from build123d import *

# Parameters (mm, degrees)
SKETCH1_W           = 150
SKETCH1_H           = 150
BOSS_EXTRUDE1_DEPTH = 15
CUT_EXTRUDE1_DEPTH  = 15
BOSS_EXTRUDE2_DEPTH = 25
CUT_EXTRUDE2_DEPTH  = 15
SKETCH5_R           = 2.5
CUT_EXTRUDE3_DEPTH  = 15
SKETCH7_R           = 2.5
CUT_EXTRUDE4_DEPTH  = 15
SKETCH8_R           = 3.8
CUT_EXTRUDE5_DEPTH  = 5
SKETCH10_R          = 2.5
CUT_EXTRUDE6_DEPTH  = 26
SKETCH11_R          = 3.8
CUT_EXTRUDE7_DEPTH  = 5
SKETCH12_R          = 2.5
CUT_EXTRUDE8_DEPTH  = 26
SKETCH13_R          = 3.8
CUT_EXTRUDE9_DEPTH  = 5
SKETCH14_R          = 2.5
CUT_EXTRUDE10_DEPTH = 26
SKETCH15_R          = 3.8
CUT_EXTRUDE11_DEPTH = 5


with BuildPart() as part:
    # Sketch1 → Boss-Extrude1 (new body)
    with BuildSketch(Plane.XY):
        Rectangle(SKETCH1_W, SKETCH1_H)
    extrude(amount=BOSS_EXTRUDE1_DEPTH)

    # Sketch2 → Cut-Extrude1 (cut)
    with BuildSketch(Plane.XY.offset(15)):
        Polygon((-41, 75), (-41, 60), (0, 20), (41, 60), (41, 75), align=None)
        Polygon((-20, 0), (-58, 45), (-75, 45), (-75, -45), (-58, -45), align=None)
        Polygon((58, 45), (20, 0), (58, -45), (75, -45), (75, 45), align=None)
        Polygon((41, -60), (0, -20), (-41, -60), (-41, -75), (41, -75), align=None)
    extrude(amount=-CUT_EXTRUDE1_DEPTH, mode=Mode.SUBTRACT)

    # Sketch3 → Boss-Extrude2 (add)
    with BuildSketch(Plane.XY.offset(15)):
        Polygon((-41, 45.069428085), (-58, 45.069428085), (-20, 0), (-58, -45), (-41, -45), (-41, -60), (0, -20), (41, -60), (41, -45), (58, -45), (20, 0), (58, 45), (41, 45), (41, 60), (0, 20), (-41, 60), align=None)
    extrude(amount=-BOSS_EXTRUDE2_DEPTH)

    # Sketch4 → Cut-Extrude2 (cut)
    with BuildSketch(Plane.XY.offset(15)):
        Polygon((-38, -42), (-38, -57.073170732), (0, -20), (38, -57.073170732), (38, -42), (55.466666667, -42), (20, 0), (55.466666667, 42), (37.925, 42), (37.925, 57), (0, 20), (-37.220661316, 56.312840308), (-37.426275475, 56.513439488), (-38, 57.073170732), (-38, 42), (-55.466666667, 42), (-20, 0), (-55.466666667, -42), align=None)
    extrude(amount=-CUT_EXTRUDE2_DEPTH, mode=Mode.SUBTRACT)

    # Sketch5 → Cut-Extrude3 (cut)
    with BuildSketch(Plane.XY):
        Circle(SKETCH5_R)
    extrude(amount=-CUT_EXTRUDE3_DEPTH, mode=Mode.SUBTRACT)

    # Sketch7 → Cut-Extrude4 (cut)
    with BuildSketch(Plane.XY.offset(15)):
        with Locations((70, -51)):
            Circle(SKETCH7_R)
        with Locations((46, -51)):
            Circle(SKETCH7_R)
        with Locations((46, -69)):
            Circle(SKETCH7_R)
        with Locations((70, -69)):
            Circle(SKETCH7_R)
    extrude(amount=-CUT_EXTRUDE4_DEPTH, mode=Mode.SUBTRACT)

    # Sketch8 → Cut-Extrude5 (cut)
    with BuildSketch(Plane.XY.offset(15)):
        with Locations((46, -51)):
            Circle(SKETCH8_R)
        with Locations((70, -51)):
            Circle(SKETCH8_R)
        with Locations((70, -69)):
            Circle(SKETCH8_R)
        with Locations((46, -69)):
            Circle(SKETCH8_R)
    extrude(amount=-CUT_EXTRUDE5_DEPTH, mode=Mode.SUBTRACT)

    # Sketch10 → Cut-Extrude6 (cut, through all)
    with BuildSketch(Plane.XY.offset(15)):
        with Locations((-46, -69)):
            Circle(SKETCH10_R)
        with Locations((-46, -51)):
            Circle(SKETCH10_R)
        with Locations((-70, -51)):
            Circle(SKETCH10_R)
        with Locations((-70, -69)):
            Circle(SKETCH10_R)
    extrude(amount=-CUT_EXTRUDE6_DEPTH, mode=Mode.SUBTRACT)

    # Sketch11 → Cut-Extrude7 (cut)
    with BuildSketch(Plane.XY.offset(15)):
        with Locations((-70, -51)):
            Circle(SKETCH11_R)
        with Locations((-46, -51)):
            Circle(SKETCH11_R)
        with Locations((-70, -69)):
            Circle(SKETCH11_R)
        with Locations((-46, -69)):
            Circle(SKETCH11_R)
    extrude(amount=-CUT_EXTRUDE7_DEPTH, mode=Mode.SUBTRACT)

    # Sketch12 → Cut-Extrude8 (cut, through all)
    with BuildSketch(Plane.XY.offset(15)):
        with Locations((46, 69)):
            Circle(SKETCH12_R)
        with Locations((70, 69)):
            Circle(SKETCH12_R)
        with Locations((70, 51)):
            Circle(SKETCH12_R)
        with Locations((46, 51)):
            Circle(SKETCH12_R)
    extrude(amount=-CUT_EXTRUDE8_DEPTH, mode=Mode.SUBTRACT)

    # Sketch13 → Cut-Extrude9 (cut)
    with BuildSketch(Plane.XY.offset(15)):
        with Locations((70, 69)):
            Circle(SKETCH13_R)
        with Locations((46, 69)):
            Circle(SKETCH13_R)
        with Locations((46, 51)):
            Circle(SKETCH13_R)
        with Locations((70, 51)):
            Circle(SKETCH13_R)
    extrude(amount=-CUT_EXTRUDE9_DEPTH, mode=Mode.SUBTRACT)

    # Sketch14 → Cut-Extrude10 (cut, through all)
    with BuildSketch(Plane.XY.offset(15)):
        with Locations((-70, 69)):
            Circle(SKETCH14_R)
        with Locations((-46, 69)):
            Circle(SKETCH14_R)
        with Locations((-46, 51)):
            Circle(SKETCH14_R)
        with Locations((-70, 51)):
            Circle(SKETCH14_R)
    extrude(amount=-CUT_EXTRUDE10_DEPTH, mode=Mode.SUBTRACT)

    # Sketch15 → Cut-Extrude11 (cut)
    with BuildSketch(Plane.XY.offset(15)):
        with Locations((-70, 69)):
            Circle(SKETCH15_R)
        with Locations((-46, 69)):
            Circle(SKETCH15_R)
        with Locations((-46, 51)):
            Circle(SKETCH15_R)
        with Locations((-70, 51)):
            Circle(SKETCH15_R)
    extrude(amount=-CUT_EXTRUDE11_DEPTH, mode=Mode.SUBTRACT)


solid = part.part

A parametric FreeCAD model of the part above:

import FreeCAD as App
import Part
import Sketcher

V = App.Vector
Q = App.Units.Quantity


def add_polygon(sketch, points):
    """Adds a closed chain of lines whose ends are joined by coincident constraints."""
    first, n = sketch.GeometryCount, len(points)
    for a, b in zip(points, points[1:] + points[:1]):
        sketch.addGeometry(Part.LineSegment(App.Vector(*a, 0), App.Vector(*b, 0)), False)
    for i in range(n):
        sketch.addConstraint(Sketcher.Constraint("Coincident", first + i, 2, first + (i + 1) % n, 1))

doc = App.newDocument("Part")
body = doc.addObject("PartDesign::Body", "Body")

sketch1 = body.newObject("Sketcher::SketchObject", "Sketch")
sketch1.AttachmentSupport = (doc.getObject("XY_Plane"), [""])
sketch1.MapMode = "FlatFace"
add_polygon(sketch1, [(-75, 75), (-75, -75), (75, -75), (75, 75)])
sketch1.addConstraint(Sketcher.Constraint("Vertical", 0))
sketch1.addConstraint(Sketcher.Constraint("Horizontal", 1))
sketch1.addConstraint(Sketcher.Constraint("Vertical", 2))
sketch1.addConstraint(Sketcher.Constraint("Horizontal", 3))
sketch1.addConstraint(Sketcher.Constraint("Symmetric", 0, 2, 2, 2, -1, 1))
sketch1.addConstraint(Sketcher.Constraint("Equal", 3, 0))
sketch1.addConstraint(Sketcher.Constraint("DistanceX", 1, 1, 1, 2, Q("150 mm")))
pad1 = body.newObject("PartDesign::Pad", "Pad")
pad1.Profile = sketch1
pad1.Length = 15

sketch2 = body.newObject("Sketcher::SketchObject", "Sketch001")
sketch2.AttachmentSupport = (doc.getObject("XY_Plane"), [""])
sketch2.MapMode = "FlatFace"
sketch2.AttachmentOffset = App.Placement(V(0, 0, 15), App.Rotation())
add_polygon(sketch2, [(-41, 75), (-41, 60), (0, 20), (41, 60), (41, 75)])
add_polygon(sketch2, [(-20, 0), (-58, 45), (-75, 45), (-75, -45), (-58, -45)])
add_polygon(sketch2, [(58, 45), (20, 0), (58, -45), (75, -45), (75, 45)])
add_polygon(sketch2, [(41, -60), (0, -20), (-41, -60), (-41, -75), (41, -75)])
sketch2.addConstraint(Sketcher.Constraint("Vertical", 0))
sketch2.addConstraint(Sketcher.Constraint("Vertical", 3))
sketch2.addConstraint(Sketcher.Constraint("Horizontal", 4))
sketch2.addConstraint(Sketcher.Constraint("Horizontal", 6))
sketch2.addConstraint(Sketcher.Constraint("Vertical", 7))
sketch2.addConstraint(Sketcher.Constraint("Horizontal", 8))
sketch2.addConstraint(Sketcher.Constraint("Horizontal", 12))
sketch2.addConstraint(Sketcher.Constraint("Vertical", 13))
sketch2.addConstraint(Sketcher.Constraint("Horizontal", 14))
sketch2.addConstraint(Sketcher.Constraint("Vertical", 17))
sketch2.addConstraint(Sketcher.Constraint("Horizontal", 18))
sketch2.addConstraint(Sketcher.Constraint("Vertical", 19))
sketch2.addConstraint(Sketcher.Constraint("Symmetric", 9, 2, 10, 2, -1, 1))
sketch2.addConstraint(Sketcher.Constraint("Symmetric", 5, 2, 11, 2, -1, 1))
sketch2.addConstraint(Sketcher.Constraint("Symmetric", 7, 2, 13, 2, -1, 1))
sketch2.addConstraint(Sketcher.Constraint("Symmetric", 1, 2, 15, 2, -1, 1))
sketch2.addConstraint(Sketcher.Constraint("Symmetric", 2, 2, 16, 2, -1, 1))
sketch2.addConstraint(Sketcher.Constraint("Symmetric", 4, 2, 18, 2, -1, 1))
sketch2.addConstraint(Sketcher.Constraint("Symmetric", 0, 2, 2, 2, -2))
sketch2.addConstraint(Sketcher.Constraint("Symmetric", 8, 2, 11, 2, -2))
sketch2.addConstraint(Sketcher.Constraint("PointOnObject", 1, 2, -2))
sketch2.addConstraint(Sketcher.Constraint("PointOnObject", 9, 2, -1))
sketch2.addConstraint(Sketcher.Constraint("Parallel", 9, 10))
sketch2.addConstraint(Sketcher.Constraint("Parallel", 1, 15))
sketch2.addConstraint(Sketcher.Constraint("DistanceX", 4, 2, 4, 1, Q("82 mm")))
sketch2.addConstraint(Sketcher.Constraint("DistanceX", 6, 2, 6, 1, Q("17 mm")))
sketch2.addConstraint(Sketcher.Constraint("DistanceY", 0, 2, 0, 1, Q("15 mm")))
sketch2.addConstraint(Sketcher.Constraint("DistanceY", 7, 2, 7, 1, Q("90 mm")))
sketch2.addConstraint(Sketcher.Constraint("DistanceY", -1, 1, 0, 2, Q("60 mm")))
sketch2.addConstraint(Sketcher.Constraint("DistanceY", -1, 1, 1, 2, Q("20 mm")))
sketch2.addConstraint(Sketcher.Constraint("DistanceX", 5, 2, -1, 1, Q("58 mm")))
sketch2.addConstraint(Sketcher.Constraint("DistanceX", 9, 2, -1, 1, Q("20 mm")))
pocket1 = body.newObject("PartDesign::Pocket", "Pocket")
pocket1.Profile = sketch2
pocket1.Length = 15

sketch3 = body.newObject("Sketcher::SketchObject", "Sketch002")
sketch3.AttachmentSupport = (doc.getObject("XY_Plane"), [""])
sketch3.MapMode = "FlatFace"
sketch3.AttachmentOffset = App.Placement(V(0, 0, 15), App.Rotation())
add_polygon(sketch3, [(-41, 45), (-58, 45), (-20, 0), (-58, -45), (-41, -45), (-41, -60), (0, -20), (41, -60), (41, -45), (58, -45), (20, 0), (58, 45), (41, 45), (41, 60), (0, 20), (-41, 60)])
sketch3.addConstraint(Sketcher.Constraint("Horizontal", 0))
sketch3.addConstraint(Sketcher.Constraint("Horizontal", 3))
sketch3.addConstraint(Sketcher.Constraint("Vertical", 4))
sketch3.addConstraint(Sketcher.Constraint("Vertical", 7))
sketch3.addConstraint(Sketcher.Constraint("Horizontal", 8))
sketch3.addConstraint(Sketcher.Constraint("Horizontal", 11))
sketch3.addConstraint(Sketcher.Constraint("Vertical", 12))
sketch3.addConstraint(Sketcher.Constraint("Vertical", 15))
sketch3.addConstraint(Sketcher.Constraint("Symmetric", 1, 2, 9, 2, -1, 1))
sketch3.addConstraint(Sketcher.Constraint("Symmetric", 2, 2, 10, 2, -1, 1))
sketch3.addConstraint(Sketcher.Constraint("Symmetric", 4, 2, 12, 2, -1, 1))
sketch3.addConstraint(Sketcher.Constraint("Symmetric", 5, 2, 13, 2, -1, 1))
sketch3.addConstraint(Sketcher.Constraint("Symmetric", 6, 2, 14, 2, -1, 1))
sketch3.addConstraint(Sketcher.Constraint("Symmetric", 4, 2, 6, 2, -2))
sketch3.addConstraint(Sketcher.Constraint("Symmetric", 2, 2, 8, 2, -2))
sketch3.addConstraint(Sketcher.Constraint("PointOnObject", 1, 2, -1))
sketch3.addConstraint(Sketcher.Constraint("PointOnObject", 5, 2, -2))
sketch3.addConstraint(Sketcher.Constraint("Vertical", 0, 2, 2, 2))
sketch3.addConstraint(Sketcher.Constraint("DistanceX", 0, 2, 0, 1, Q("17 mm")))
sketch3.addConstraint(Sketcher.Constraint("DistanceY", 4, 2, 4, 1, Q("15 mm")))
sketch3.addConstraint(Sketcher.Constraint("DistanceX", 0, 2, -1, 1, Q("58 mm")))
sketch3.addConstraint(Sketcher.Constraint("DistanceX", 1, 2, -1, 1, Q("20 mm")))
sketch3.addConstraint(Sketcher.Constraint("DistanceY", 2, 2, -1, 1, Q("45 mm")))
sketch3.addConstraint(Sketcher.Constraint("DistanceY", 5, 2, -1, 1, Q("20 mm")))
sketch3.addConstraint(Sketcher.Constraint("DistanceY", 15, 2, 15, 1, Q("14.930572 mm")))
pad2 = body.newObject("PartDesign::Pad", "Pad001")
pad2.Profile = sketch3
pad2.Length = 25
pad2.Reversed = True

sketch4 = body.newObject("Sketcher::SketchObject", "Sketch003")
sketch4.AttachmentSupport = (doc.getObject("XY_Plane"), [""])
sketch4.MapMode = "FlatFace"
sketch4.AttachmentOffset = App.Placement(V(0, 0, 15), App.Rotation())
add_polygon(sketch4, [(-38, -42), (-38, -57.07), (0, -20), (38, -57.07), (38, -42), (55.47, -42), (20, 0), (55.47, 42), (37.92, 42), (37.92, 57), (0, 20), (-37.22, 56.31), (-37.43, 56.51), (-38, 57.07), (-38, 42), (-55.47, 42), (-20, 0), (-55.47, -42)])
sketch4.addConstraint(Sketcher.Constraint("Vertical", 0))
sketch4.addConstraint(Sketcher.Constraint("Vertical", 3))
sketch4.addConstraint(Sketcher.Constraint("Horizontal", 4))
sketch4.addConstraint(Sketcher.Constraint("Horizontal", 7))
sketch4.addConstraint(Sketcher.Constraint("Vertical", 8))
sketch4.addConstraint(Sketcher.Constraint("Vertical", 13))
sketch4.addConstraint(Sketcher.Constraint("Horizontal", 14))
sketch4.addConstraint(Sketcher.Constraint("Horizontal", 17))
sketch4.addConstraint(Sketcher.Constraint("Symmetric", 1, 2, 9, 2, -1, 1))
sketch4.addConstraint(Sketcher.Constraint("Symmetric", 2, 2, 12, 2, -1, 1))
sketch4.addConstraint(Sketcher.Constraint("Symmetric", 4, 2, 14, 2, -1, 1))
sketch4.addConstraint(Sketcher.Constraint("Symmetric", 5, 2, 15, 2, -1, 1))
sketch4.addConstraint(Sketcher.Constraint("Symmetric", 6, 2, 16, 2, -1, 1))
sketch4.addConstraint(Sketcher.Constraint("Symmetric", 0, 2, 2, 2, -2))
sketch4.addConstraint(Sketcher.Constraint("Symmetric", 6, 2, 14, 2, -2))
sketch4.addConstraint(Sketcher.Constraint("PointOnObject", 1, 2, -2))
sketch4.addConstraint(Sketcher.Constraint("PointOnObject", 5, 2, -1))
sketch4.addConstraint(Sketcher.Constraint("Parallel", 1, 9))
sketch4.addConstraint(Sketcher.Constraint("Parallel", 2, 10))
sketch4.addConstraint(Sketcher.Constraint("Parallel", 10, 11))
sketch4.addConstraint(Sketcher.Constraint("DistanceY", 8, 1, 8, 2, Q("15 mm")))
sketch4.addConstraint(Sketcher.Constraint("Distance", 10, Q("52 mm")))
sketch4.addConstraint(Sketcher.Constraint("DistanceX", 0, 2, -1, 1, Q("38 mm")))
sketch4.addConstraint(Sketcher.Constraint("DistanceY", 1, 2, -1, 1, Q("20 mm")))
sketch4.addConstraint(Sketcher.Constraint("DistanceY", 3, 2, -1, 1, Q("42 mm")))
sketch4.addConstraint(Sketcher.Constraint("DistanceX", -1, 1, 5, 2, Q("20 mm")))
sketch4.addConstraint(Sketcher.Constraint("DistanceX", -1, 1, 7, 2, Q("37.925 mm")))
sketch4.addConstraint(Sketcher.Constraint("DistanceY", 10, 2, 11, 2, Q("0.200599 mm")))
sketch4.addConstraint(Sketcher.Constraint("Distance", 5, Q("54.971669 mm")))
pocket2 = body.newObject("PartDesign::Pocket", "Pocket001")
pocket2.Profile = sketch4
pocket2.Length = 15

sketch5 = body.newObject("Sketcher::SketchObject", "Sketch004")
sketch5.AttachmentSupport = (doc.getObject("XY_Plane"), [""])
sketch5.MapMode = "FlatFace"
sketch5.addGeometry(Part.Circle(V(0, 0, 0), V(0, 0, 1), 2.5), False)
sketch5.addConstraint(Sketcher.Constraint("Coincident", 0, 3, -1, 1))
sketch5.addConstraint(Sketcher.Constraint("Diameter", 0, Q("5 mm")))
pocket3 = body.newObject("PartDesign::Pocket", "Pocket002")
pocket3.Profile = sketch5
pocket3.Length = 15

sketch6 = body.newObject("Sketcher::SketchObject", "Sketch005")
sketch6.AttachmentSupport = (doc.getObject("XY_Plane"), [""])
sketch6.MapMode = "FlatFace"
sketch6.AttachmentOffset = App.Placement(V(0, 0, 15), App.Rotation())
sketch6.addGeometry(Part.Circle(V(70, -51, 0), V(0, 0, 1), 2.5), False)
sketch6.addGeometry(Part.Circle(V(46, -51, 0), V(0, 0, 1), 2.5), False)
sketch6.addGeometry(Part.Circle(V(46, -69, 0), V(0, 0, 1), 2.5), False)
sketch6.addGeometry(Part.Circle(V(70, -69, 0), V(0, 0, 1), 2.5), False)
sketch6.addConstraint(Sketcher.Constraint("Equal", 0, 1))
sketch6.addConstraint(Sketcher.Constraint("Equal", 1, 2))
sketch6.addConstraint(Sketcher.Constraint("Equal", 2, 3))
sketch6.addConstraint(Sketcher.Constraint("Horizontal", 0, 3, 1, 3))
sketch6.addConstraint(Sketcher.Constraint("Horizontal", 2, 3, 3, 3))
sketch6.addConstraint(Sketcher.Constraint("Vertical", 1, 3, 2, 3))
sketch6.addConstraint(Sketcher.Constraint("Vertical", 0, 3, 3, 3))
sketch6.addConstraint(Sketcher.Constraint("Diameter", 0, Q("5 mm")))
sketch6.addConstraint(Sketcher.Constraint("DistanceX", -1, 1, 0, 3, Q("70 mm")))
sketch6.addConstraint(Sketcher.Constraint("DistanceY", 0, 3, -1, 1, Q("51 mm")))
sketch6.addConstraint(Sketcher.Constraint("DistanceX", -1, 1, 1, 3, Q("46 mm")))
sketch6.addConstraint(Sketcher.Constraint("DistanceY", 2, 3, -1, 1, Q("69 mm")))
pocket4 = body.newObject("PartDesign::Pocket", "Pocket003")
pocket4.Profile = sketch6
pocket4.Length = 15

sketch7 = body.newObject("Sketcher::SketchObject", "Sketch006")
sketch7.AttachmentSupport = (doc.getObject("XY_Plane"), [""])
sketch7.MapMode = "FlatFace"
sketch7.AttachmentOffset = App.Placement(V(0, 0, 15), App.Rotation())
sketch7.addGeometry(Part.Circle(V(46, -51, 0), V(0, 0, 1), 3.8), False)
sketch7.addGeometry(Part.Circle(V(70, -51, 0), V(0, 0, 1), 3.8), False)
sketch7.addGeometry(Part.Circle(V(70, -69, 0), V(0, 0, 1), 3.8), False)
sketch7.addGeometry(Part.Circle(V(46, -69, 0), V(0, 0, 1), 3.8), False)
sketch7.addConstraint(Sketcher.Constraint("Equal", 0, 1))
sketch7.addConstraint(Sketcher.Constraint("Equal", 1, 2))
sketch7.addConstraint(Sketcher.Constraint("Equal", 2, 3))
sketch7.addConstraint(Sketcher.Constraint("Horizontal", 0, 3, 1, 3))
sketch7.addConstraint(Sketcher.Constraint("Horizontal", 2, 3, 3, 3))
sketch7.addConstraint(Sketcher.Constraint("Vertical", 1, 3, 2, 3))
sketch7.addConstraint(Sketcher.Constraint("Vertical", 0, 3, 3, 3))
sketch7.addConstraint(Sketcher.Constraint("Diameter", 0, Q("7.6 mm")))
sketch7.addConstraint(Sketcher.Constraint("DistanceX", -1, 1, 0, 3, Q("46 mm")))
sketch7.addConstraint(Sketcher.Constraint("DistanceY", 0, 3, -1, 1, Q("51 mm")))
sketch7.addConstraint(Sketcher.Constraint("DistanceX", -1, 1, 1, 3, Q("70 mm")))
sketch7.addConstraint(Sketcher.Constraint("DistanceY", 2, 3, -1, 1, Q("69 mm")))
pocket5 = body.newObject("PartDesign::Pocket", "Pocket004")
pocket5.Profile = sketch7
pocket5.Length = 5

sketch8 = body.newObject("Sketcher::SketchObject", "Sketch007")
sketch8.AttachmentSupport = (doc.getObject("XY_Plane"), [""])
sketch8.MapMode = "FlatFace"
sketch8.AttachmentOffset = App.Placement(V(0, 0, 15), App.Rotation())
sketch8.addGeometry(Part.Circle(V(-46, -69, 0), V(0, 0, 1), 2.5), False)
sketch8.addGeometry(Part.Circle(V(-46, -51, 0), V(0, 0, 1), 2.5), False)
sketch8.addGeometry(Part.Circle(V(-70, -51, 0), V(0, 0, 1), 2.5), False)
sketch8.addGeometry(Part.Circle(V(-70, -69, 0), V(0, 0, 1), 2.5), False)
sketch8.addConstraint(Sketcher.Constraint("Equal", 0, 1))
sketch8.addConstraint(Sketcher.Constraint("Equal", 1, 2))
sketch8.addConstraint(Sketcher.Constraint("Equal", 2, 3))
sketch8.addConstraint(Sketcher.Constraint("Horizontal", 1, 3, 2, 3))
sketch8.addConstraint(Sketcher.Constraint("Horizontal", 0, 3, 3, 3))
sketch8.addConstraint(Sketcher.Constraint("Vertical", 0, 3, 1, 3))
sketch8.addConstraint(Sketcher.Constraint("Vertical", 2, 3, 3, 3))
sketch8.addConstraint(Sketcher.Constraint("Diameter", 0, Q("5 mm")))
sketch8.addConstraint(Sketcher.Constraint("DistanceX", 0, 3, -1, 1, Q("46 mm")))
sketch8.addConstraint(Sketcher.Constraint("DistanceY", 0, 3, -1, 1, Q("69 mm")))
sketch8.addConstraint(Sketcher.Constraint("DistanceY", 1, 3, -1, 1, Q("51 mm")))
sketch8.addConstraint(Sketcher.Constraint("DistanceX", 2, 3, -1, 1, Q("70 mm")))
pocket6 = body.newObject("PartDesign::Pocket", "Pocket005")
pocket6.Profile = sketch8
pocket6.Type = "ThroughAll"

sketch9 = body.newObject("Sketcher::SketchObject", "Sketch008")
sketch9.AttachmentSupport = (doc.getObject("XY_Plane"), [""])
sketch9.MapMode = "FlatFace"
sketch9.AttachmentOffset = App.Placement(V(0, 0, 15), App.Rotation())
sketch9.addGeometry(Part.Circle(V(-70, -51, 0), V(0, 0, 1), 3.8), False)
sketch9.addGeometry(Part.Circle(V(-46, -51, 0), V(0, 0, 1), 3.8), False)
sketch9.addGeometry(Part.Circle(V(-70, -69, 0), V(0, 0, 1), 3.8), False)
sketch9.addGeometry(Part.Circle(V(-46, -69, 0), V(0, 0, 1), 3.8), False)
sketch9.addConstraint(Sketcher.Constraint("Equal", 0, 1))
sketch9.addConstraint(Sketcher.Constraint("Equal", 1, 2))
sketch9.addConstraint(Sketcher.Constraint("Equal", 2, 3))
sketch9.addConstraint(Sketcher.Constraint("Horizontal", 0, 3, 1, 3))
sketch9.addConstraint(Sketcher.Constraint("Horizontal", 2, 3, 3, 3))
sketch9.addConstraint(Sketcher.Constraint("Vertical", 0, 3, 2, 3))
sketch9.addConstraint(Sketcher.Constraint("Vertical", 1, 3, 3, 3))
sketch9.addConstraint(Sketcher.Constraint("Diameter", 0, Q("7.6 mm")))
sketch9.addConstraint(Sketcher.Constraint("DistanceX", 0, 3, -1, 1, Q("70 mm")))
sketch9.addConstraint(Sketcher.Constraint("DistanceY", 0, 3, -1, 1, Q("51 mm")))
sketch9.addConstraint(Sketcher.Constraint("DistanceX", 1, 3, -1, 1, Q("46 mm")))
sketch9.addConstraint(Sketcher.Constraint("DistanceY", 2, 3, -1, 1, Q("69 mm")))
pocket7 = body.newObject("PartDesign::Pocket", "Pocket006")
pocket7.Profile = sketch9
pocket7.Length = 5

sketch10 = body.newObject("Sketcher::SketchObject", "Sketch009")
sketch10.AttachmentSupport = (doc.getObject("XY_Plane"), [""])
sketch10.MapMode = "FlatFace"
sketch10.AttachmentOffset = App.Placement(V(0, 0, 15), App.Rotation())
sketch10.addGeometry(Part.Circle(V(46, 69, 0), V(0, 0, 1), 2.5), False)
sketch10.addGeometry(Part.Circle(V(70, 69, 0), V(0, 0, 1), 2.5), False)
sketch10.addGeometry(Part.Circle(V(70, 51, 0), V(0, 0, 1), 2.5), False)
sketch10.addGeometry(Part.Circle(V(46, 51, 0), V(0, 0, 1), 2.5), False)
sketch10.addConstraint(Sketcher.Constraint("Equal", 0, 1))
sketch10.addConstraint(Sketcher.Constraint("Equal", 1, 2))
sketch10.addConstraint(Sketcher.Constraint("Equal", 2, 3))
sketch10.addConstraint(Sketcher.Constraint("Horizontal", 0, 3, 1, 3))
sketch10.addConstraint(Sketcher.Constraint("Horizontal", 2, 3, 3, 3))
sketch10.addConstraint(Sketcher.Constraint("Vertical", 1, 3, 2, 3))
sketch10.addConstraint(Sketcher.Constraint("Vertical", 0, 3, 3, 3))
sketch10.addConstraint(Sketcher.Constraint("Diameter", 0, Q("5 mm")))
sketch10.addConstraint(Sketcher.Constraint("DistanceX", -1, 1, 0, 3, Q("46 mm")))
sketch10.addConstraint(Sketcher.Constraint("DistanceY", -1, 1, 0, 3, Q("69 mm")))
sketch10.addConstraint(Sketcher.Constraint("DistanceX", -1, 1, 1, 3, Q("70 mm")))
sketch10.addConstraint(Sketcher.Constraint("DistanceY", -1, 1, 2, 3, Q("51 mm")))
pocket8 = body.newObject("PartDesign::Pocket", "Pocket007")
pocket8.Profile = sketch10
pocket8.Type = "ThroughAll"

sketch11 = body.newObject("Sketcher::SketchObject", "Sketch010")
sketch11.AttachmentSupport = (doc.getObject("XY_Plane"), [""])
sketch11.MapMode = "FlatFace"
sketch11.AttachmentOffset = App.Placement(V(0, 0, 15), App.Rotation())
sketch11.addGeometry(Part.Circle(V(70, 69, 0), V(0, 0, 1), 3.8), False)
sketch11.addGeometry(Part.Circle(V(46, 69, 0), V(0, 0, 1), 3.8), False)
sketch11.addGeometry(Part.Circle(V(46, 51, 0), V(0, 0, 1), 3.8), False)
sketch11.addGeometry(Part.Circle(V(70, 51, 0), V(0, 0, 1), 3.8), False)
sketch11.addConstraint(Sketcher.Constraint("Equal", 0, 1))
sketch11.addConstraint(Sketcher.Constraint("Equal", 1, 2))
sketch11.addConstraint(Sketcher.Constraint("Equal", 2, 3))
sketch11.addConstraint(Sketcher.Constraint("Horizontal", 0, 3, 1, 3))
sketch11.addConstraint(Sketcher.Constraint("Horizontal", 2, 3, 3, 3))
sketch11.addConstraint(Sketcher.Constraint("Vertical", 1, 3, 2, 3))
sketch11.addConstraint(Sketcher.Constraint("Vertical", 0, 3, 3, 3))
sketch11.addConstraint(Sketcher.Constraint("Diameter", 0, Q("7.6 mm")))
sketch11.addConstraint(Sketcher.Constraint("DistanceX", -1, 1, 0, 3, Q("70 mm")))
sketch11.addConstraint(Sketcher.Constraint("DistanceY", -1, 1, 0, 3, Q("69 mm")))
sketch11.addConstraint(Sketcher.Constraint("DistanceX", -1, 1, 1, 3, Q("46 mm")))
sketch11.addConstraint(Sketcher.Constraint("DistanceY", -1, 1, 2, 3, Q("51 mm")))
pocket9 = body.newObject("PartDesign::Pocket", "Pocket008")
pocket9.Profile = sketch11
pocket9.Length = 5

sketch12 = body.newObject("Sketcher::SketchObject", "Sketch011")
sketch12.AttachmentSupport = (doc.getObject("XY_Plane"), [""])
sketch12.MapMode = "FlatFace"
sketch12.AttachmentOffset = App.Placement(V(0, 0, 15), App.Rotation())
sketch12.addGeometry(Part.Circle(V(-70, 69, 0), V(0, 0, 1), 2.5), False)
sketch12.addGeometry(Part.Circle(V(-46, 69, 0), V(0, 0, 1), 2.5), False)
sketch12.addGeometry(Part.Circle(V(-46, 51, 0), V(0, 0, 1), 2.5), False)
sketch12.addGeometry(Part.Circle(V(-70, 51, 0), V(0, 0, 1), 2.5), False)
sketch12.addConstraint(Sketcher.Constraint("Equal", 0, 1))
sketch12.addConstraint(Sketcher.Constraint("Equal", 1, 2))
sketch12.addConstraint(Sketcher.Constraint("Equal", 2, 3))
sketch12.addConstraint(Sketcher.Constraint("Horizontal", 0, 3, 1, 3))
sketch12.addConstraint(Sketcher.Constraint("Horizontal", 2, 3, 3, 3))
sketch12.addConstraint(Sketcher.Constraint("Vertical", 1, 3, 2, 3))
sketch12.addConstraint(Sketcher.Constraint("Vertical", 0, 3, 3, 3))
sketch12.addConstraint(Sketcher.Constraint("Diameter", 0, Q("5 mm")))
sketch12.addConstraint(Sketcher.Constraint("DistanceX", 0, 3, -1, 1, Q("70 mm")))
sketch12.addConstraint(Sketcher.Constraint("DistanceY", -1, 1, 0, 3, Q("69 mm")))
sketch12.addConstraint(Sketcher.Constraint("DistanceX", 1, 3, -1, 1, Q("46 mm")))
sketch12.addConstraint(Sketcher.Constraint("DistanceY", -1, 1, 2, 3, Q("51 mm")))
pocket10 = body.newObject("PartDesign::Pocket", "Pocket009")
pocket10.Profile = sketch12
pocket10.Type = "ThroughAll"

sketch13 = body.newObject("Sketcher::SketchObject", "Sketch012")
sketch13.AttachmentSupport = (doc.getObject("XY_Plane"), [""])
sketch13.MapMode = "FlatFace"
sketch13.AttachmentOffset = App.Placement(V(0, 0, 15), App.Rotation())
sketch13.addGeometry(Part.Circle(V(-70, 69, 0), V(0, 0, 1), 3.8), False)
sketch13.addGeometry(Part.Circle(V(-46, 69, 0), V(0, 0, 1), 3.8), False)
sketch13.addGeometry(Part.Circle(V(-46, 51, 0), V(0, 0, 1), 3.8), False)
sketch13.addGeometry(Part.Circle(V(-70, 51, 0), V(0, 0, 1), 3.8), False)
sketch13.addConstraint(Sketcher.Constraint("Equal", 0, 1))
sketch13.addConstraint(Sketcher.Constraint("Equal", 1, 2))
sketch13.addConstraint(Sketcher.Constraint("Equal", 2, 3))
sketch13.addConstraint(Sketcher.Constraint("Horizontal", 0, 3, 1, 3))
sketch13.addConstraint(Sketcher.Constraint("Horizontal", 2, 3, 3, 3))
sketch13.addConstraint(Sketcher.Constraint("Vertical", 1, 3, 2, 3))
sketch13.addConstraint(Sketcher.Constraint("Vertical", 0, 3, 3, 3))
sketch13.addConstraint(Sketcher.Constraint("Diameter", 0, Q("7.6 mm")))
sketch13.addConstraint(Sketcher.Constraint("DistanceX", 0, 3, -1, 1, Q("70 mm")))
sketch13.addConstraint(Sketcher.Constraint("DistanceY", -1, 1, 0, 3, Q("69 mm")))
sketch13.addConstraint(Sketcher.Constraint("DistanceX", 1, 3, -1, 1, Q("46 mm")))
sketch13.addConstraint(Sketcher.Constraint("DistanceY", -1, 1, 2, 3, Q("51 mm")))
pocket11 = body.newObject("PartDesign::Pocket", "Pocket010")
pocket11.Profile = sketch13
pocket11.Length = 5

doc.recompute()
